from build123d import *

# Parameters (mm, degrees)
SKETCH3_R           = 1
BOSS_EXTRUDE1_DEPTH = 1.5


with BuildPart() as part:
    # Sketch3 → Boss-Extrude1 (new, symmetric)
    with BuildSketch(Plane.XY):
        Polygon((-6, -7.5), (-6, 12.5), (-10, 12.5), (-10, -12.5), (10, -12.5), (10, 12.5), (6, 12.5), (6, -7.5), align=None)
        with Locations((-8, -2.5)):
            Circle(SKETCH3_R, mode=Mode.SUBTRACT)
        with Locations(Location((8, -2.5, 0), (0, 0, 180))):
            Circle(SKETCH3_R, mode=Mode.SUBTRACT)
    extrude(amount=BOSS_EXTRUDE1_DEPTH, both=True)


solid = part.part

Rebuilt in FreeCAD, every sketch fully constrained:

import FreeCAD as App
import Part
import Sketcher

doc = App.newDocument("Part")
params = doc.addObject("Spreadsheet::Sheet", "Params")
for row, (alias, value) in enumerate([
    ("sketch1_diameter", "2 mm"),
    ("sketch1_width", "4 mm"),
    ("sketch1_width2", "20 mm"),
    ("sketch1_height", "25 mm"),
    ("pad1_length", "3 mm"),
], start=1):
    params.set(f"A{row}", alias)
    params.set(f"B{row}", "=" + value)
    params.setAlias(f"B{row}", alias)

body = doc.addObject("PartDesign::Body", "Body")

sketch1 = body.newObject("Sketcher::SketchObject", "Sketch")
sketch1.AttachmentSupport = (doc.getObject("XY_Plane"), [""])
sketch1.MapMode = "FlatFace"
sketch1.addGeometry([
    Part.LineSegment(App.Vector(-6, -7.5, 0), App.Vector(-6, 12.5, 0)),
    Part.LineSegment(App.Vector(-6, 12.5, 0), App.Vector(-10, 12.5, 0)),
    Part.LineSegment(App.Vector(-10, 12.5, 0), App.Vector(-10, -12.5, 0)),
    Part.LineSegment(App.Vector(-10, -12.5, 0), App.Vector(10, -12.5, 0)),
    Part.LineSegment(App.Vector(10, -12.5, 0), App.Vector(10, 12.5, 0)),
    Part.LineSegment(App.Vector(10, 12.5, 0), App.Vector(6, 12.5, 0)),
    Part.LineSegment(App.Vector(6, 12.5, 0), App.Vector(6, -7.5, 0)),
    Part.LineSegment(App.Vector(6, -7.5, 0), App.Vector(-6, -7.5, 0)),
    Part.Circle(App.Vector(-8, -2.5, 0), App.Vector(0, 0, 1), 1),
    Part.Circle(App.Vector(8, -2.5, 0), App.Vector(0, 0, 1), 1),
], False)
sketch1.addConstraint([
    Sketcher.Constraint("Coincident", 0, 2, 1, 1),
    Sketcher.Constraint("Coincident", 1, 2, 2, 1),
    Sketcher.Constraint("Coincident", 2, 2, 3, 1),
    Sketcher.Constraint("Coincident", 3, 2, 4, 1),
    Sketcher.Constraint("Coincident", 4, 2, 5, 1),
    Sketcher.Constraint("Coincident", 5, 2, 6, 1),
    Sketcher.Constraint("Coincident", 6, 2, 7, 1),
    Sketcher.Constraint("Coincident", 7, 2, 0, 1),
    Sketcher.Constraint("Vertical", 0),
    Sketcher.Constraint("Horizontal", 1),
    Sketcher.Constraint("Vertical", 2),
    Sketcher.Constraint("Horizontal", 3),
    Sketcher.Constraint("Vertical", 4),
    Sketcher.Constraint("Horizontal", 5),
    Sketcher.Constraint("Vertical", 6),
    Sketcher.Constraint("Horizontal", 7),
    Sketcher.Constraint("Equal", 8, 9),
    Sketcher.Constraint("Symmetric", 1, 2, 3, 2, -1, 1),
    Sketcher.Constraint("Symmetric", 8, 3, 9, 3, -2),
    Sketcher.Constraint("Symmetric", 0, 2, 5, 2, -2),
    Sketcher.Constraint("Equal", 3, 0),
    Sketcher.Constraint("Diameter", 8, 2.0),
    Sketcher.Constraint("DistanceX", 1, 2, 1, 1, 4.0),
    Sketcher.Constraint("DistanceX", 3, 1, 3, 2, 20.0),
    Sketcher.Constraint("DistanceY", 2, 2, 2, 1, 25.0),
    Sketcher.Constraint("DistanceX", 8, 3, -1, 1, 8.0),
    Sketcher.Constraint("DistanceY", 8, 3, 0, 2, 15.0),
])
sketch1.setExpression("Constraints[21]", "Params.sketch1_diameter")
sketch1.setExpression("Constraints[22]", "Params.sketch1_width")
sketch1.setExpression("Constraints[23]", "Params.sketch1_width2")
sketch1.setExpression("Constraints[24]", "Params.sketch1_height")
pad1 = body.newObject("PartDesign::Pad", "Pad")
pad1.Profile = sketch1
pad1.setExpression("Length", "Params.pad1_length")
pad1.Midplane = True

doc.recompute()
